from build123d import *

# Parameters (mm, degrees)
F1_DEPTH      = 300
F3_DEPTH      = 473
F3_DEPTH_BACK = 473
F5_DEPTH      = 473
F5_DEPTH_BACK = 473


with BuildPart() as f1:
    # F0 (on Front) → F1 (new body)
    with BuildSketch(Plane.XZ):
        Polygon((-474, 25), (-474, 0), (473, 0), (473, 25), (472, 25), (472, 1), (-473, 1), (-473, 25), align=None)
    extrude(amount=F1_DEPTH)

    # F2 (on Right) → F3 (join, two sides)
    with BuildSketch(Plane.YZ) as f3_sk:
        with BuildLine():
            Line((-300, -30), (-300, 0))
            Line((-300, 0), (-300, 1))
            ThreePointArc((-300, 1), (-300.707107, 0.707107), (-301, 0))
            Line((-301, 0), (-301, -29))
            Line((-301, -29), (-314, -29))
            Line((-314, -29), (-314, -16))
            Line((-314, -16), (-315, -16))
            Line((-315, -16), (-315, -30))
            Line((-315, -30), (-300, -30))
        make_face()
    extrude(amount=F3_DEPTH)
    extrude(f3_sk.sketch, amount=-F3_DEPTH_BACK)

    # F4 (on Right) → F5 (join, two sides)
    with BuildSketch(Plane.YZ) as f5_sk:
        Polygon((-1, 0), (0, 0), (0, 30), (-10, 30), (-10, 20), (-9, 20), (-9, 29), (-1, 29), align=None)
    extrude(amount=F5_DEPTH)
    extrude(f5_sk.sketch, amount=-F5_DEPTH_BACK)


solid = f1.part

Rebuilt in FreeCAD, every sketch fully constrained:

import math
import FreeCAD as App
import Part
import Sketcher

doc = App.newDocument("Part")
params = doc.addObject("Spreadsheet::Sheet", "Params")
for row, (alias, value) in enumerate([
    ("sketch1_width", "947 mm"),
    ("sketch1_width2", "1 mm"),
    ("sketch1_height", "25 mm"),
    ("sketch1_height2", "24 mm"),
    ("pad1_length", "300 mm"),
    ("sketch2_radius", "0.999999 mm"),
    ("sketch2_width", "13 mm"),
    ("sketch2_width2", "1 mm"),
    ("sketch2_height", "31 mm"),
    ("sketch2_height2", "29 mm"),
    ("pad2_length", "473 mm"),
    ("pad2_length2", "473 mm"),
    ("sketch3_width", "1 mm"),
    ("sketch3_width2", "10 mm"),
    ("sketch3_height", "30 mm"),
    ("sketch3_height2", "9 mm"),
    ("pad3_length", "473 mm"),
    ("pad3_length2", "473 mm"),
], start=1):
    params.set(f"A{row}", alias)
    params.set(f"B{row}", "=" + value)
    params.setAlias(f"B{row}", alias)

body = doc.addObject("PartDesign::Body", "Body")

sketch1 = doc.addObject("Sketcher::SketchObject", "Sketch")
body.addObject(sketch1)
sketch1.AttachmentSupport = (doc.XZ_Plane, [""])
sketch1.MapMode = "FlatFace"
sketch1.addGeometry([
    Part.LineSegment(App.Vector(-474, 25, 0), App.Vector(-474, 0, 0)),
    Part.LineSegment(App.Vector(-474, 0, 0), App.Vector(473, 0, 0)),
    Part.LineSegment(App.Vector(473, 0, 0), App.Vector(473, 25, 0)),
    Part.LineSegment(App.Vector(473, 25, 0), App.Vector(472, 25, 0)),
    Part.LineSegment(App.Vector(472, 25, 0), App.Vector(472, 1, 0)),
    Part.LineSegment(App.Vector(472, 1, 0), App.Vector(-473, 1, 0)),
    Part.LineSegment(App.Vector(-473, 1, 0), App.Vector(-473, 25, 0)),
    Part.LineSegment(App.Vector(-473, 25, 0), App.Vector(-474, 25, 0)),
], False)
sketch1.addConstraint([
    Sketcher.Constraint("Coincident", 0, 2, 1, 1),
    Sketcher.Constraint("Coincident", 1, 2, 2, 1),
    Sketcher.Constraint("Coincident", 2, 2, 3, 1),
    Sketcher.Constraint("Coincident", 3, 2, 4, 1),
    Sketcher.Constraint("Coincident", 4, 2, 5, 1),
    Sketcher.Constraint("Coincident", 5, 2, 6, 1),
    Sketcher.Constraint("Coincident", 6, 2, 7, 1),
    Sketcher.Constraint("Coincident", 7, 2, 0, 1),
    Sketcher.Constraint("Vertical", 0),
    Sketcher.Constraint("Horizontal", 1),
    Sketcher.Constraint("Vertical", 2),
    Sketcher.Constraint("Horizontal", 3),
    Sketcher.Constraint("Vertical", 4),
    Sketcher.Constraint("Horizontal", 5),
    Sketcher.Constraint("Vertical", 6),
    Sketcher.Constraint("Horizontal", 7),
    Sketcher.Constraint("Symmetric", 2, 2, 6, 2, -2),
    Sketcher.Constraint("PointOnObject", 0, 2, -1),
    Sketcher.Constraint("Equal", 3, 7),
    Sketcher.Constraint("DistanceX", 1, 1, 1, 2, 947.0),
    Sketcher.Constraint("DistanceX", 3, 2, 3, 1, 1.0),
    Sketcher.Constraint("DistanceY", 0, 2, 0, 1, 25.0),
    Sketcher.Constraint("DistanceY", 4, 2, 4, 1, 24.0),
])
sketch1.setExpression("Constraints[19]", "Params.sketch1_width")
sketch1.setExpression("Constraints[20]", "Params.sketch1_width2")
sketch1.setExpression("Constraints[21]", "Params.sketch1_height")
sketch1.setExpression("Constraints[22]", "Params.sketch1_height2")
pad1 = doc.addObject("PartDesign::Pad", "Pad")
body.addObject(pad1)
pad1.Profile = sketch1
pad1.setExpression("Length", "Params.pad1_length")

sketch2 = doc.addObject("Sketcher::SketchObject", "Sketch001")
body.addObject(sketch2)
sketch2.AttachmentSupport = (doc.YZ_Plane, [""])
sketch2.MapMode = "FlatFace"
sketch2.addGeometry([
    Part.LineSegment(App.Vector(-300, -30, 0), App.Vector(-300, 1, 0)),
    Part.ArcOfCircle(Part.Circle(App.Vector(-300.000001, 0.000001, 0), App.Vector(0, 0, 1), 0.999999), math.radians(89.999957), math.radians(180.000043)),
    Part.LineSegment(App.Vector(-301, 0, 0), App.Vector(-301, -29, 0)),
    Part.LineSegment(App.Vector(-301, -29, 0), App.Vector(-314, -29, 0)),
    Part.LineSegment(App.Vector(-314, -29, 0), App.Vector(-314, -16, 0)),
    Part.LineSegment(App.Vector(-314, -16, 0), App.Vector(-315, -16, 0)),
    Part.LineSegment(App.Vector(-315, -16, 0), App.Vector(-315, -30, 0)),
    Part.LineSegment(App.Vector(-315, -30, 0), App.Vector(-300, -30, 0)),
], False)
sketch2.addConstraint([
    Sketcher.Constraint("Coincident", 0, 2, 1, 1),
    Sketcher.Constraint("Tangent", 1, 2, 2, 1),
    Sketcher.Constraint("Coincident", 2, 2, 3, 1),
    Sketcher.Constraint("Coincident", 3, 2, 4, 1),
    Sketcher.Constraint("Coincident", 4, 2, 5, 1),
    Sketcher.Constraint("Coincident", 5, 2, 6, 1),
    Sketcher.Constraint("Coincident", 6, 2, 7, 1),
    Sketcher.Constraint("Coincident", 7, 2, 0, 1),
    Sketcher.Constraint("Vertical", 0),
    Sketcher.Constraint("Vertical", 2),
    Sketcher.Constraint("Horizontal", 3),
    Sketcher.Constraint("Vertical", 4),
    Sketcher.Constraint("Horizontal", 5),
    Sketcher.Constraint("Vertical", 6),
    Sketcher.Constraint("Horizontal", 7),
    Sketcher.Constraint("PointOnObject", 1, 3, -1),
    Sketcher.Constraint("Vertical", 1, 3, 0, 2),
    Sketcher.Constraint("Equal", 3, 4),
    Sketcher.Constraint("Radius", 1, 0.999999),
    Sketcher.Constraint("DistanceX", 3, 2, 3, 1, 13.0),
    Sketcher.Constraint("DistanceX", 5, 2, 5, 1, 1.0),
    Sketcher.Constraint("DistanceY", 0, 1, 0, 2, 31.0),
    Sketcher.Constraint("DistanceY", 2, 2, 2, 1, 29.0),
    Sketcher.Constraint("DistanceX", 1, 3, -1, 1, 300.000001),
])
sketch2.setExpression("Constraints[18]", "Params.sketch2_radius")
sketch2.setExpression("Constraints[19]", "Params.sketch2_width")
sketch2.setExpression("Constraints[20]", "Params.sketch2_width2")
sketch2.setExpression("Constraints[21]", "Params.sketch2_height")
sketch2.setExpression("Constraints[22]", "Params.sketch2_height2")
pad2 = doc.addObject("PartDesign::Pad", "Pad001")
body.addObject(pad2)
pad2.Profile = sketch2
pad2.Type = "TwoLengths"
pad2.setExpression("Length", "Params.pad2_length")
pad2.setExpression("Length2", "Params.pad2_length2")

sketch3 = doc.addObject("Sketcher::SketchObject", "Sketch002")
body.addObject(sketch3)
sketch3.AttachmentSupport = (doc.YZ_Plane, [""])
sketch3.MapMode = "FlatFace"
sketch3.addGeometry([
    Part.LineSegment(App.Vector(-1, 0, 0), App.Vector(0, 0, 0)),
    Part.LineSegment(App.Vector(0, 0, 0), App.Vector(0, 30, 0)),
    Part.LineSegment(App.Vector(0, 30, 0), App.Vector(-10, 30, 0)),
    Part.LineSegment(App.Vector(-10, 30, 0), App.Vector(-10, 20, 0)),
    Part.LineSegment(App.Vector(-10, 20, 0), App.Vector(-9, 20, 0)),
    Part.LineSegment(App.Vector(-9, 20, 0), App.Vector(-9, 29, 0)),
    Part.LineSegment(App.Vector(-9, 29, 0), App.Vector(-1, 29, 0)),
    Part.LineSegment(App.Vector(-1, 29, 0), App.Vector(-1, 0, 0)),
], False)
sketch3.addConstraint([
    Sketcher.Constraint("Coincident", 0, 2, 1, 1),
    Sketcher.Constraint("Coincident", 1, 2, 2, 1),
    Sketcher.Constraint("Coincident", 2, 2, 3, 1),
    Sketcher.Constraint("Coincident", 3, 2, 4, 1),
    Sketcher.Constraint("Coincident", 4, 2, 5, 1),
    Sketcher.Constraint("Coincident", 5, 2, 6, 1),
    Sketcher.Constraint("Coincident", 6, 2, 7, 1),
    Sketcher.Constraint("Coincident", 7, 2, 0, 1),
    Sketcher.Constraint("Horizontal", 0),
    Sketcher.Constraint("Vertical", 1),
    Sketcher.Constraint("Horizontal", 2),
    Sketcher.Constraint("Vertical", 3),
    Sketcher.Constraint("Horizontal", 4),
    Sketcher.Constraint("Vertical", 5),
    Sketcher.Constraint("Horizontal", 6),
    Sketcher.Constraint("Vertical", 7),
    Sketcher.Constraint("Coincident", 0, 2, -1, 1),
    Sketcher.Constraint("Equal", 0, 4),
    Sketcher.Constraint("Equal", 2, 3),
    Sketcher.Constraint("DistanceX", 0, 1, 0, 2, 1.0),
    Sketcher.Constraint("DistanceX", 2, 2, 2, 1, 10.0),
    Sketcher.Constraint("DistanceY", 1, 1, 1, 2, 30.0),
    Sketcher.Constraint("DistanceY", 5, 1, 5, 2, 9.0),
])
sketch3.setExpression("Constraints[19]", "Params.sketch3_width")
sketch3.setExpression("Constraints[20]", "Params.sketch3_width2")
sketch3.setExpression("Constraints[21]", "Params.sketch3_height")
sketch3.setExpression("Constraints[22]", "Params.sketch3_height2")
pad3 = doc.addObject("PartDesign::Pad", "Pad002")
body.addObject(pad3)
pad3.Profile = sketch3
pad3.Type = "TwoLengths"
pad3.setExpression("Length", "Params.pad3_length")
pad3.setExpression("Length2", "Params.pad3_length2")

doc.recompute()
